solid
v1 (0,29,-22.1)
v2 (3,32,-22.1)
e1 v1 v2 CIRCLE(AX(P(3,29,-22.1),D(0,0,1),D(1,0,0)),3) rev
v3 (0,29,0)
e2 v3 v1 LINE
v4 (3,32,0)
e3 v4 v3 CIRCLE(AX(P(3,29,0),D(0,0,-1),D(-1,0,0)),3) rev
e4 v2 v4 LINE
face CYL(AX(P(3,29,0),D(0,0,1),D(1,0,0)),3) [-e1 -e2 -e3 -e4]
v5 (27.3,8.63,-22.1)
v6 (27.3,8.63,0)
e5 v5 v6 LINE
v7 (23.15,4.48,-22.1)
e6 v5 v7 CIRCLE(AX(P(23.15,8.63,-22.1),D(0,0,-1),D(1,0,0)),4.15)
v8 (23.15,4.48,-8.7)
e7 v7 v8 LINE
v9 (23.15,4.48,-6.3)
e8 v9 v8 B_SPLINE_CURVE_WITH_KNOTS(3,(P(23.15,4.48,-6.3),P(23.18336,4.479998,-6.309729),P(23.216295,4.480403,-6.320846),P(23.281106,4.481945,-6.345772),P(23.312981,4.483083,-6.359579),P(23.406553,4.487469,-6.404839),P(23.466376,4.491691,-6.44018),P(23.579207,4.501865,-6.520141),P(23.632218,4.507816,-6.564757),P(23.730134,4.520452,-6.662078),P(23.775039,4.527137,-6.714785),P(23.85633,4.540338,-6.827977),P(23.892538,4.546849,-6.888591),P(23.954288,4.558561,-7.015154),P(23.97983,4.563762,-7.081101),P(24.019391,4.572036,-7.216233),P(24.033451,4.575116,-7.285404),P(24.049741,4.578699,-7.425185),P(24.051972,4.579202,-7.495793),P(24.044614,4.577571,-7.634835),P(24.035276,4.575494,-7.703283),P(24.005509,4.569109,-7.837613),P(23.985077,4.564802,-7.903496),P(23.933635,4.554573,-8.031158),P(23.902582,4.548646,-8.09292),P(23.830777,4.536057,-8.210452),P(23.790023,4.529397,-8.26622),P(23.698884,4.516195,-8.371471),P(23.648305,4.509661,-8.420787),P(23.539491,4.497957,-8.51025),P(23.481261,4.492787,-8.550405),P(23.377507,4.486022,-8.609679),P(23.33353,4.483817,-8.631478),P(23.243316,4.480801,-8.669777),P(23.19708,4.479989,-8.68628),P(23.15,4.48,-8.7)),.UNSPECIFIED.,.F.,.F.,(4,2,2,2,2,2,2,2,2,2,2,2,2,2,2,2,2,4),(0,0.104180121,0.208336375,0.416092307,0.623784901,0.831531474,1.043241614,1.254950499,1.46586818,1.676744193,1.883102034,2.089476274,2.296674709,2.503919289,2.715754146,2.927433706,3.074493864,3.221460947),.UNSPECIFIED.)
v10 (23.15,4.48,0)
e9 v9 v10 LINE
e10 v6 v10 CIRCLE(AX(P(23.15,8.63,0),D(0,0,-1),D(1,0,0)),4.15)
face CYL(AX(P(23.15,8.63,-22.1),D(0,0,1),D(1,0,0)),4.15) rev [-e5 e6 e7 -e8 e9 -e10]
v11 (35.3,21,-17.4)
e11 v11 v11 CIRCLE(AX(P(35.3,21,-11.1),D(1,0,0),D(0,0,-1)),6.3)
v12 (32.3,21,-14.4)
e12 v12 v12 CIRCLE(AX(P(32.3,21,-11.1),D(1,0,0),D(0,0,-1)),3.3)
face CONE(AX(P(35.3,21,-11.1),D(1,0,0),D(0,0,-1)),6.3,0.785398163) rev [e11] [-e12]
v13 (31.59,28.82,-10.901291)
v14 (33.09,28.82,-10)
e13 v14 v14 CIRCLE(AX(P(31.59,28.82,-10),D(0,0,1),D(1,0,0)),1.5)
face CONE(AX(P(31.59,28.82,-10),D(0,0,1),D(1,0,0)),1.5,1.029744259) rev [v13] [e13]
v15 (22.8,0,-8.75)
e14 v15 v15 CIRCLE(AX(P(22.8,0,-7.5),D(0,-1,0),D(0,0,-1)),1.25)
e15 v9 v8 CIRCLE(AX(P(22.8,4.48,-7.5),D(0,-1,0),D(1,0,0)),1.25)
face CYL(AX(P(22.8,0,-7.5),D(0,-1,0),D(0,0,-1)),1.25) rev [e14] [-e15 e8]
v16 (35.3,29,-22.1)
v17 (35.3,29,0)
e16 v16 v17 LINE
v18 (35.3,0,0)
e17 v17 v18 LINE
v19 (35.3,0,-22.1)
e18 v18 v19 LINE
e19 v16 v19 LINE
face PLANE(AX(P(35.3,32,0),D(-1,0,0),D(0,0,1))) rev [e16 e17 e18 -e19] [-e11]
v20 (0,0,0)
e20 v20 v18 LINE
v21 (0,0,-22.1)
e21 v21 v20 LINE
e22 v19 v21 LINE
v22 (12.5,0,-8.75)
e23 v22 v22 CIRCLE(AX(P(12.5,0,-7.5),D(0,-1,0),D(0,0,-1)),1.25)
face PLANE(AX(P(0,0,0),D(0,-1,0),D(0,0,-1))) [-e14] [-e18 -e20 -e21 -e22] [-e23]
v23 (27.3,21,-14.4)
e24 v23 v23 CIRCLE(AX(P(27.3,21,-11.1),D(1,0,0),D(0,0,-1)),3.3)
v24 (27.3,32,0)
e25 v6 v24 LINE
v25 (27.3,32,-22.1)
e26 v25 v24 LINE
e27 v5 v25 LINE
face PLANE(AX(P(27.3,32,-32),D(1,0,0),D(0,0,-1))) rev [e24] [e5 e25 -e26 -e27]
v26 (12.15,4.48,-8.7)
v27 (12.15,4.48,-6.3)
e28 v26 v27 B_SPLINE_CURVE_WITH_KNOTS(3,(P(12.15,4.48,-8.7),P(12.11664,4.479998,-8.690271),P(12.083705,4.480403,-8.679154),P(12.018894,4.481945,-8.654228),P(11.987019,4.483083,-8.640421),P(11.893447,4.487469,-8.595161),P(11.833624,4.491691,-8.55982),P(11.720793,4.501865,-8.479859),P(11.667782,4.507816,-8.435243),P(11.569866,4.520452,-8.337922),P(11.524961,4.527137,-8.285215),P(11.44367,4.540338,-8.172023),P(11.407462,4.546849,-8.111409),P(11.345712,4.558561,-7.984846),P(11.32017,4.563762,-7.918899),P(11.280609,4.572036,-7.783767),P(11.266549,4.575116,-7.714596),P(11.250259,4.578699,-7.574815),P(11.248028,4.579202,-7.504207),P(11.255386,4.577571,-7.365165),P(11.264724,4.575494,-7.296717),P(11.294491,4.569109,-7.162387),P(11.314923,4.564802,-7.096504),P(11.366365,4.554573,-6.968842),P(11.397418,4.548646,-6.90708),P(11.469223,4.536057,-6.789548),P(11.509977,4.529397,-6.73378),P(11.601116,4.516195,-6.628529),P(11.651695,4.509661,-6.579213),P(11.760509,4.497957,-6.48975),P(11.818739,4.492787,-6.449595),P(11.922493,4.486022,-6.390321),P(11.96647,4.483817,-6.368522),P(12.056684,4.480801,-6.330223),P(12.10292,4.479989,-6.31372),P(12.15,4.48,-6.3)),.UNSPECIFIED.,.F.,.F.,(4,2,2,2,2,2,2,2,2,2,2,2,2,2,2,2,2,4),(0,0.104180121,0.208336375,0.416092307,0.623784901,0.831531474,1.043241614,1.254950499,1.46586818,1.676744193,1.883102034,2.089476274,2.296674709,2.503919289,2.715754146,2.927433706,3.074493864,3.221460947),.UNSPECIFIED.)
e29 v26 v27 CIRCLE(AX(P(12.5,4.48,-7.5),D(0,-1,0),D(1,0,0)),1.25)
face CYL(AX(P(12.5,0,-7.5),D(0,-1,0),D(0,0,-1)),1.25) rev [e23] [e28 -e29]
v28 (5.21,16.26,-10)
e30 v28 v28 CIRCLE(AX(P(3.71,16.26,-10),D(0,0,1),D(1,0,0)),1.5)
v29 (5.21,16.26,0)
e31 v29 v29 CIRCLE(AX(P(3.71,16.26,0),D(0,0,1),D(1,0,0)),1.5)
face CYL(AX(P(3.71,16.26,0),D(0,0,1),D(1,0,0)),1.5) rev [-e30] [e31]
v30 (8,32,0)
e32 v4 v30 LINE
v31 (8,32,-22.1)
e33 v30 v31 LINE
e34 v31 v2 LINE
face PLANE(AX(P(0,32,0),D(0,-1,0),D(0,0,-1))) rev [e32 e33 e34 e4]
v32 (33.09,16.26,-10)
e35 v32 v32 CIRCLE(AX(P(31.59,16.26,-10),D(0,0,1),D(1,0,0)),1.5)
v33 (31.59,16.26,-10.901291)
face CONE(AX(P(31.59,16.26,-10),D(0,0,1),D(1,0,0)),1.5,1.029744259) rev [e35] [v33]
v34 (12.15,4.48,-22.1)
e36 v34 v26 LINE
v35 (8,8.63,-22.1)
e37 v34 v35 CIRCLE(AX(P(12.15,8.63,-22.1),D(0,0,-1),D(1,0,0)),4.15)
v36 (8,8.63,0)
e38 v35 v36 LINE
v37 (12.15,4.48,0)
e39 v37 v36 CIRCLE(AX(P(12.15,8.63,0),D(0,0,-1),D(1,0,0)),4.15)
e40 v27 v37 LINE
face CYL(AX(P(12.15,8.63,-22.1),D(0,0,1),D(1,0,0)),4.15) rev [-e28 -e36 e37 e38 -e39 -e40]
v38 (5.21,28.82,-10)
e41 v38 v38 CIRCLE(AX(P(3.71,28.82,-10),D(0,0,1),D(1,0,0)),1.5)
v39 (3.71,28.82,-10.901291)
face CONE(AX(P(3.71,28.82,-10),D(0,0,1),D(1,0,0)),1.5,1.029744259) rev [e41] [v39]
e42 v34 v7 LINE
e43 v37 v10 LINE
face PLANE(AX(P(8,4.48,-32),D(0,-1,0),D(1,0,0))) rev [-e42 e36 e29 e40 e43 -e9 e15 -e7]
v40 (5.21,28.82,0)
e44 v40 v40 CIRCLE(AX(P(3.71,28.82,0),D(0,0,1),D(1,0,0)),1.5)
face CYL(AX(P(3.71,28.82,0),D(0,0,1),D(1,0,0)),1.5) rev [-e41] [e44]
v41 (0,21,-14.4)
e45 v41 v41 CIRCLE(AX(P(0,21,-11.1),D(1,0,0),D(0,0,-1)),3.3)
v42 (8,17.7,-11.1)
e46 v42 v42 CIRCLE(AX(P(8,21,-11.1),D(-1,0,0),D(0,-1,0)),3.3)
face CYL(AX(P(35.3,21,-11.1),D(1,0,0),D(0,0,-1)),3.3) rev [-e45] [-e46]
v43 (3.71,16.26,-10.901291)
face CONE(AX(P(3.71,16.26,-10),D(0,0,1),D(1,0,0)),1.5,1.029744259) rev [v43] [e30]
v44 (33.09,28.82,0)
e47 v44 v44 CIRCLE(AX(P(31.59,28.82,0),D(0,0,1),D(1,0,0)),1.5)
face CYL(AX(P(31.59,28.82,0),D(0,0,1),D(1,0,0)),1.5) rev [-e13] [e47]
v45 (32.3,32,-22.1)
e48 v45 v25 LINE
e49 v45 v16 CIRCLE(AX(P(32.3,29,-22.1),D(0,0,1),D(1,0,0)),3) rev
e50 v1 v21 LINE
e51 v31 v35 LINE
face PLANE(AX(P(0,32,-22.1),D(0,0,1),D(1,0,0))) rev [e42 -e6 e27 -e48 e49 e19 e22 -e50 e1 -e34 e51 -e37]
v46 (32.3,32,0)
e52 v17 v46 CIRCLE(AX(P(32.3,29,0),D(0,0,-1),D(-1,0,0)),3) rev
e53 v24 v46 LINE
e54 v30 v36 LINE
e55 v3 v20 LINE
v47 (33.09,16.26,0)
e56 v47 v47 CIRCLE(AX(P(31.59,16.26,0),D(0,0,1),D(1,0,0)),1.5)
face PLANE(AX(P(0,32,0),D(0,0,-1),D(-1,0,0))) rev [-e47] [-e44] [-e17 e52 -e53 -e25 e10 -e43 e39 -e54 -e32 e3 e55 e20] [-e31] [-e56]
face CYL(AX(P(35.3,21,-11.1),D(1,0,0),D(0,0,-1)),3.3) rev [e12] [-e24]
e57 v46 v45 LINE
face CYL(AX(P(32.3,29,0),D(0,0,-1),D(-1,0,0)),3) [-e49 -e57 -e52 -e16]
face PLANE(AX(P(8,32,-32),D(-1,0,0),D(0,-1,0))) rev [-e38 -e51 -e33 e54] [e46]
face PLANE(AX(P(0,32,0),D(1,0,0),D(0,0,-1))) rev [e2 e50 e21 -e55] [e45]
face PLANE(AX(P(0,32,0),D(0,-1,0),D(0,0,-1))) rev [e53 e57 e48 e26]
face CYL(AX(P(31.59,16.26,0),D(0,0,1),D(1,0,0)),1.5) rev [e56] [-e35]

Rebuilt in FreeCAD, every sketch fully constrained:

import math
import FreeCAD as App
import Part
import Sketcher
Q = App.Units.Quantity


def edges_at(feature, points):
    """Names of the edges that pass closest to the given points."""
    edges = feature.Shape.Edges
    near = lambda p: min(range(len(edges)), key=lambda i: edges[i].distToShape(Part.Vertex(*p))[0])
    return sorted({f"Edge{near(p) + 1}" for p in points})


def add_polygon(sketch, points):
    """Adds a closed chain of lines whose ends are joined by coincident constraints."""
    first, n = sketch.GeometryCount, len(points)
    for a, b in zip(points, points[1:] + points[:1]):
        sketch.addGeometry(Part.LineSegment(App.Vector(*a, 0), App.Vector(*b, 0)), False)
    for i in range(n):
        sketch.addConstraint(Sketcher.Constraint("Coincident", first + i, 2, first + (i + 1) % n, 1))

doc = App.newDocument("Part")
body = doc.addObject("PartDesign::Body", "Body")

sketch1 = doc.addObject("Sketcher::SketchObject", "Sketch")
body.addObject(sketch1)
sketch1.AttachmentSupport = (doc.XZ_Plane, [""])
sketch1.MapMode = "FlatFace"
add_polygon(sketch1, [(0, -22), (0, 0), (35, 0), (35, -22)])
sketch1.addConstraint([
    Sketcher.Constraint("Vertical", 0),
    Sketcher.Constraint("Horizontal", 1),
    Sketcher.Constraint("Vertical", 2),
    Sketcher.Constraint("Horizontal", 3),
    Sketcher.Constraint("Coincident", 0, 2, -1, 1),
    Sketcher.Constraint("DistanceX", 1, 1, 1, 2, Q("35.3 mm")),
    Sketcher.Constraint("DistanceY", 0, 1, 0, 2, Q("22.1 mm")),
])
pad1 = doc.addObject("PartDesign::Pad", "Pad")
body.addObject(pad1)
pad1.Profile = sketch1
pad1.Length = 32
pad1.Reversed = True

sketch2 = doc.addObject("Sketcher::SketchObject", "Sketch001")
body.addObject(sketch2)
sketch2.AttachmentSupport = (doc.XY_Plane, [""])
sketch2.MapMode = "FlatFace"
add_polygon(sketch2, [(8, 32), (8, 4), (27, 4), (27, 32)])
sketch2.addConstraint([
    Sketcher.Constraint("Vertical", 0),
    Sketcher.Constraint("Horizontal", 1),
    Sketcher.Constraint("Vertical", 2),
    Sketcher.Constraint("Horizontal", 3),
    Sketcher.Constraint("DistanceX", 1, 1, 1, 2, Q("19.3 mm")),
    Sketcher.Constraint("DistanceX", -1, 1, 0, 2, Q("8 mm")),
    Sketcher.Constraint("DistanceY", -1, 1, 2, 2, Q("32 mm")),
    Sketcher.Constraint("DistanceY", 0, 2, 0, 1, Q("27.52 mm")),
])
pocket1 = doc.addObject("PartDesign::Pocket", "Pocket")
body.addObject(pocket1)
pocket1.Profile = sketch2
pocket1.Length = 32

sketch3 = doc.addObject("Sketcher::SketchObject", "Sketch002")
body.addObject(sketch3)
sketch3.AttachmentSupport = (doc.XY_Plane, [""])
sketch3.MapMode = "FlatFace"
sketch3.addGeometry([
    Part.LineSegment(App.Vector(8, 8.6, 0), App.Vector(8, 4.5, 0)),
    Part.LineSegment(App.Vector(8, 4.5, 0), App.Vector(12.2, 4.5, 0)),
    Part.ArcOfCircle(Part.Circle(App.Vector(12.2, 8.6, 0), App.Vector(0, 0, 1), 4.2), math.radians(180), math.radians(270)),
    Part.LineSegment(App.Vector(27.3, 4.5, 0), App.Vector(27.3, 8.6, 0)),
    Part.ArcOfCircle(Part.Circle(App.Vector(23.1, 8.6, 0), App.Vector(0, 0, 1), 4.2), math.radians(-90), math.radians(0)),
    Part.LineSegment(App.Vector(23.1, 4.5, 0), App.Vector(27.3, 4.5, 0)),
], False)
sketch3.addConstraint([
    Sketcher.Constraint("Coincident", 0, 2, 1, 1),
    Sketcher.Constraint("Tangent", 1, 2, 2, 2),
    Sketcher.Constraint("Tangent", 2, 1, 0, 1),
    Sketcher.Constraint("Tangent", 3, 2, 4, 2),
    Sketcher.Constraint("Tangent", 4, 1, 5, 1),
    Sketcher.Constraint("Coincident", 5, 2, 3, 1),
    Sketcher.Constraint("Vertical", 0),
    Sketcher.Constraint("Horizontal", 1),
    Sketcher.Constraint("Vertical", 3),
    Sketcher.Constraint("Horizontal", 5),
    Sketcher.Constraint("Equal", 2, 4),
    Sketcher.Constraint("Horizontal", 2, 3, 4, 3),
    Sketcher.Constraint("Radius", 2, Q("4.15 mm")),
    Sketcher.Constraint("DistanceX", -1, 1, 0, 2, Q("8 mm")),
    Sketcher.Constraint("DistanceX", 2, 3, 4, 3, Q("11 mm")),
    Sketcher.Constraint("DistanceY", -1, 1, 2, 3, Q("8.63 mm")),
])
pad2 = doc.addObject("PartDesign::Pad", "Pad001")
body.addObject(pad2)
pad2.Profile = sketch3
pad2.Length = 22.1
pad2.Reversed = True
doc.recompute()

fillet = doc.addObject("PartDesign::Fillet", "Fillet")
body.addObject(fillet)
fillet.Base = (pad2, edges_at(pad2, [(35.3, 32, -11.05), (0, 32, -11.05)]))
fillet.Radius = 3

sketch4 = doc.addObject("Sketcher::SketchObject", "Sketch003")
body.addObject(sketch4)
sketch4.AttachmentSupport = (doc.YZ_Plane, [""])
sketch4.MapMode = "FlatFace"
sketch4.AttachmentOffset = App.Placement(App.Vector(0, 0, 35.3), App.Rotation())
sketch4.addGeometry(Part.Circle(App.Vector(21, -11.1, 0), App.Vector(0, 0, 1), 3.3), False)
sketch4.addConstraint([
    Sketcher.Constraint("Diameter", 0, Q("6.6 mm")),
    Sketcher.Constraint("DistanceX", -1, 1, 0, 3, Q("21 mm")),
    Sketcher.Constraint("DistanceY", 0, 3, -1, 1, Q("11.1 mm")),
])
doc.recompute()
hole = doc.addObject("PartDesign::Hole", "Hole")
body.addObject(hole)
hole.Profile = sketch4
hole.ThreadType = "None"
hole.Diameter = 6.6
hole.DepthType = "Dimension"
hole.Depth = 45
hole.DrillPoint = "Angled"
hole.DrillPointAngle = 118
hole.HoleCutType = "Countersink"
hole.HoleCutDiameter = 12.6
hole.HoleCutCountersinkAngle = 90

sketch5 = doc.addObject("Sketcher::SketchObject", "Sketch004")
body.addObject(sketch5)
sketch5.AttachmentSupport = (doc.XY_Plane, [""])
sketch5.MapMode = "FlatFace"
sketch5.addGeometry([
    Part.Circle(App.Vector(3.7, 28.8, 0), App.Vector(0, 0, 1), 1.5),
    Part.Circle(App.Vector(3.7, 16.3, 0), App.Vector(0, 0, 1), 1.5),
    Part.Circle(App.Vector(31.6, 28.8, 0), App.Vector(0, 0, 1), 1.5),
    Part.Circle(App.Vector(31.6, 16.3, 0), App.Vector(0, 0, 1), 1.5),
], False)
sketch5.addConstraint([
    Sketcher.Constraint("Equal", 0, 1),
    Sketcher.Constraint("Equal", 1, 2),
    Sketcher.Constraint("Equal", 2, 3),
    Sketcher.Constraint("Horizontal", 0, 3, 2, 3),
    Sketcher.Constraint("Horizontal", 1, 3, 3, 3),
    Sketcher.Constraint("Vertical", 0, 3, 1, 3),
    Sketcher.Constraint("Vertical", 2, 3, 3, 3),
    Sketcher.Constraint("Diameter", 0, Q("3 mm")),
    Sketcher.Constraint("DistanceX", -1, 1, 0, 3, Q("3.71 mm")),
    Sketcher.Constraint("DistanceY", -1, 1, 0, 3, Q("28.82 mm")),
    Sketcher.Constraint("DistanceY", -1, 1, 1, 3, Q("16.26 mm")),
    Sketcher.Constraint("DistanceX", -1, 1, 2, 3, Q("31.59 mm")),
])
doc.recompute()
hole2 = doc.addObject("PartDesign::Hole", "Hole001")
body.addObject(hole2)
hole2.Profile = sketch5
hole2.ThreadType = "None"
hole2.Diameter = 3
hole2.DepthType = "Dimension"
hole2.Depth = 10
hole2.DrillPoint = "Angled"
hole2.DrillPointAngle = 118

sketch6 = doc.addObject("Sketcher::SketchObject", "Sketch005")
body.addObject(sketch6)
sketch6.AttachmentSupport = (doc.XZ_Plane, [""])
sketch6.MapMode = "FlatFace"
sketch6.addGeometry([
    Part.Circle(App.Vector(12.5, -7.5, 0), App.Vector(0, 0, 1), 1.2),
    Part.Circle(App.Vector(22.8, -7.5, 0), App.Vector(0, 0, 1), 1.2),
], False)
sketch6.addConstraint([
    Sketcher.Constraint("Equal", 0, 1),
    Sketcher.Constraint("Horizontal", 0, 3, 1, 3),
    Sketcher.Constraint("Diameter", 0, Q("2.5 mm")),
    Sketcher.Constraint("DistanceX", -1, 1, 0, 3, Q("12.5 mm")),
    Sketcher.Constraint("DistanceY", 0, 3, -1, 1, Q("7.5 mm")),
    Sketcher.Constraint("DistanceX", -1, 1, 1, 3, Q("22.8 mm")),
])
doc.recompute()
hole3 = doc.addObject("PartDesign::Hole", "Hole002")
body.addObject(hole3)
hole3.Profile = sketch6
hole3.ThreadType = "None"
hole3.Diameter = 2.5
hole3.DepthType = "Dimension"
hole3.Depth = 10
hole3.DrillPoint = "Angled"
hole3.DrillPointAngle = 118

doc.recompute()
